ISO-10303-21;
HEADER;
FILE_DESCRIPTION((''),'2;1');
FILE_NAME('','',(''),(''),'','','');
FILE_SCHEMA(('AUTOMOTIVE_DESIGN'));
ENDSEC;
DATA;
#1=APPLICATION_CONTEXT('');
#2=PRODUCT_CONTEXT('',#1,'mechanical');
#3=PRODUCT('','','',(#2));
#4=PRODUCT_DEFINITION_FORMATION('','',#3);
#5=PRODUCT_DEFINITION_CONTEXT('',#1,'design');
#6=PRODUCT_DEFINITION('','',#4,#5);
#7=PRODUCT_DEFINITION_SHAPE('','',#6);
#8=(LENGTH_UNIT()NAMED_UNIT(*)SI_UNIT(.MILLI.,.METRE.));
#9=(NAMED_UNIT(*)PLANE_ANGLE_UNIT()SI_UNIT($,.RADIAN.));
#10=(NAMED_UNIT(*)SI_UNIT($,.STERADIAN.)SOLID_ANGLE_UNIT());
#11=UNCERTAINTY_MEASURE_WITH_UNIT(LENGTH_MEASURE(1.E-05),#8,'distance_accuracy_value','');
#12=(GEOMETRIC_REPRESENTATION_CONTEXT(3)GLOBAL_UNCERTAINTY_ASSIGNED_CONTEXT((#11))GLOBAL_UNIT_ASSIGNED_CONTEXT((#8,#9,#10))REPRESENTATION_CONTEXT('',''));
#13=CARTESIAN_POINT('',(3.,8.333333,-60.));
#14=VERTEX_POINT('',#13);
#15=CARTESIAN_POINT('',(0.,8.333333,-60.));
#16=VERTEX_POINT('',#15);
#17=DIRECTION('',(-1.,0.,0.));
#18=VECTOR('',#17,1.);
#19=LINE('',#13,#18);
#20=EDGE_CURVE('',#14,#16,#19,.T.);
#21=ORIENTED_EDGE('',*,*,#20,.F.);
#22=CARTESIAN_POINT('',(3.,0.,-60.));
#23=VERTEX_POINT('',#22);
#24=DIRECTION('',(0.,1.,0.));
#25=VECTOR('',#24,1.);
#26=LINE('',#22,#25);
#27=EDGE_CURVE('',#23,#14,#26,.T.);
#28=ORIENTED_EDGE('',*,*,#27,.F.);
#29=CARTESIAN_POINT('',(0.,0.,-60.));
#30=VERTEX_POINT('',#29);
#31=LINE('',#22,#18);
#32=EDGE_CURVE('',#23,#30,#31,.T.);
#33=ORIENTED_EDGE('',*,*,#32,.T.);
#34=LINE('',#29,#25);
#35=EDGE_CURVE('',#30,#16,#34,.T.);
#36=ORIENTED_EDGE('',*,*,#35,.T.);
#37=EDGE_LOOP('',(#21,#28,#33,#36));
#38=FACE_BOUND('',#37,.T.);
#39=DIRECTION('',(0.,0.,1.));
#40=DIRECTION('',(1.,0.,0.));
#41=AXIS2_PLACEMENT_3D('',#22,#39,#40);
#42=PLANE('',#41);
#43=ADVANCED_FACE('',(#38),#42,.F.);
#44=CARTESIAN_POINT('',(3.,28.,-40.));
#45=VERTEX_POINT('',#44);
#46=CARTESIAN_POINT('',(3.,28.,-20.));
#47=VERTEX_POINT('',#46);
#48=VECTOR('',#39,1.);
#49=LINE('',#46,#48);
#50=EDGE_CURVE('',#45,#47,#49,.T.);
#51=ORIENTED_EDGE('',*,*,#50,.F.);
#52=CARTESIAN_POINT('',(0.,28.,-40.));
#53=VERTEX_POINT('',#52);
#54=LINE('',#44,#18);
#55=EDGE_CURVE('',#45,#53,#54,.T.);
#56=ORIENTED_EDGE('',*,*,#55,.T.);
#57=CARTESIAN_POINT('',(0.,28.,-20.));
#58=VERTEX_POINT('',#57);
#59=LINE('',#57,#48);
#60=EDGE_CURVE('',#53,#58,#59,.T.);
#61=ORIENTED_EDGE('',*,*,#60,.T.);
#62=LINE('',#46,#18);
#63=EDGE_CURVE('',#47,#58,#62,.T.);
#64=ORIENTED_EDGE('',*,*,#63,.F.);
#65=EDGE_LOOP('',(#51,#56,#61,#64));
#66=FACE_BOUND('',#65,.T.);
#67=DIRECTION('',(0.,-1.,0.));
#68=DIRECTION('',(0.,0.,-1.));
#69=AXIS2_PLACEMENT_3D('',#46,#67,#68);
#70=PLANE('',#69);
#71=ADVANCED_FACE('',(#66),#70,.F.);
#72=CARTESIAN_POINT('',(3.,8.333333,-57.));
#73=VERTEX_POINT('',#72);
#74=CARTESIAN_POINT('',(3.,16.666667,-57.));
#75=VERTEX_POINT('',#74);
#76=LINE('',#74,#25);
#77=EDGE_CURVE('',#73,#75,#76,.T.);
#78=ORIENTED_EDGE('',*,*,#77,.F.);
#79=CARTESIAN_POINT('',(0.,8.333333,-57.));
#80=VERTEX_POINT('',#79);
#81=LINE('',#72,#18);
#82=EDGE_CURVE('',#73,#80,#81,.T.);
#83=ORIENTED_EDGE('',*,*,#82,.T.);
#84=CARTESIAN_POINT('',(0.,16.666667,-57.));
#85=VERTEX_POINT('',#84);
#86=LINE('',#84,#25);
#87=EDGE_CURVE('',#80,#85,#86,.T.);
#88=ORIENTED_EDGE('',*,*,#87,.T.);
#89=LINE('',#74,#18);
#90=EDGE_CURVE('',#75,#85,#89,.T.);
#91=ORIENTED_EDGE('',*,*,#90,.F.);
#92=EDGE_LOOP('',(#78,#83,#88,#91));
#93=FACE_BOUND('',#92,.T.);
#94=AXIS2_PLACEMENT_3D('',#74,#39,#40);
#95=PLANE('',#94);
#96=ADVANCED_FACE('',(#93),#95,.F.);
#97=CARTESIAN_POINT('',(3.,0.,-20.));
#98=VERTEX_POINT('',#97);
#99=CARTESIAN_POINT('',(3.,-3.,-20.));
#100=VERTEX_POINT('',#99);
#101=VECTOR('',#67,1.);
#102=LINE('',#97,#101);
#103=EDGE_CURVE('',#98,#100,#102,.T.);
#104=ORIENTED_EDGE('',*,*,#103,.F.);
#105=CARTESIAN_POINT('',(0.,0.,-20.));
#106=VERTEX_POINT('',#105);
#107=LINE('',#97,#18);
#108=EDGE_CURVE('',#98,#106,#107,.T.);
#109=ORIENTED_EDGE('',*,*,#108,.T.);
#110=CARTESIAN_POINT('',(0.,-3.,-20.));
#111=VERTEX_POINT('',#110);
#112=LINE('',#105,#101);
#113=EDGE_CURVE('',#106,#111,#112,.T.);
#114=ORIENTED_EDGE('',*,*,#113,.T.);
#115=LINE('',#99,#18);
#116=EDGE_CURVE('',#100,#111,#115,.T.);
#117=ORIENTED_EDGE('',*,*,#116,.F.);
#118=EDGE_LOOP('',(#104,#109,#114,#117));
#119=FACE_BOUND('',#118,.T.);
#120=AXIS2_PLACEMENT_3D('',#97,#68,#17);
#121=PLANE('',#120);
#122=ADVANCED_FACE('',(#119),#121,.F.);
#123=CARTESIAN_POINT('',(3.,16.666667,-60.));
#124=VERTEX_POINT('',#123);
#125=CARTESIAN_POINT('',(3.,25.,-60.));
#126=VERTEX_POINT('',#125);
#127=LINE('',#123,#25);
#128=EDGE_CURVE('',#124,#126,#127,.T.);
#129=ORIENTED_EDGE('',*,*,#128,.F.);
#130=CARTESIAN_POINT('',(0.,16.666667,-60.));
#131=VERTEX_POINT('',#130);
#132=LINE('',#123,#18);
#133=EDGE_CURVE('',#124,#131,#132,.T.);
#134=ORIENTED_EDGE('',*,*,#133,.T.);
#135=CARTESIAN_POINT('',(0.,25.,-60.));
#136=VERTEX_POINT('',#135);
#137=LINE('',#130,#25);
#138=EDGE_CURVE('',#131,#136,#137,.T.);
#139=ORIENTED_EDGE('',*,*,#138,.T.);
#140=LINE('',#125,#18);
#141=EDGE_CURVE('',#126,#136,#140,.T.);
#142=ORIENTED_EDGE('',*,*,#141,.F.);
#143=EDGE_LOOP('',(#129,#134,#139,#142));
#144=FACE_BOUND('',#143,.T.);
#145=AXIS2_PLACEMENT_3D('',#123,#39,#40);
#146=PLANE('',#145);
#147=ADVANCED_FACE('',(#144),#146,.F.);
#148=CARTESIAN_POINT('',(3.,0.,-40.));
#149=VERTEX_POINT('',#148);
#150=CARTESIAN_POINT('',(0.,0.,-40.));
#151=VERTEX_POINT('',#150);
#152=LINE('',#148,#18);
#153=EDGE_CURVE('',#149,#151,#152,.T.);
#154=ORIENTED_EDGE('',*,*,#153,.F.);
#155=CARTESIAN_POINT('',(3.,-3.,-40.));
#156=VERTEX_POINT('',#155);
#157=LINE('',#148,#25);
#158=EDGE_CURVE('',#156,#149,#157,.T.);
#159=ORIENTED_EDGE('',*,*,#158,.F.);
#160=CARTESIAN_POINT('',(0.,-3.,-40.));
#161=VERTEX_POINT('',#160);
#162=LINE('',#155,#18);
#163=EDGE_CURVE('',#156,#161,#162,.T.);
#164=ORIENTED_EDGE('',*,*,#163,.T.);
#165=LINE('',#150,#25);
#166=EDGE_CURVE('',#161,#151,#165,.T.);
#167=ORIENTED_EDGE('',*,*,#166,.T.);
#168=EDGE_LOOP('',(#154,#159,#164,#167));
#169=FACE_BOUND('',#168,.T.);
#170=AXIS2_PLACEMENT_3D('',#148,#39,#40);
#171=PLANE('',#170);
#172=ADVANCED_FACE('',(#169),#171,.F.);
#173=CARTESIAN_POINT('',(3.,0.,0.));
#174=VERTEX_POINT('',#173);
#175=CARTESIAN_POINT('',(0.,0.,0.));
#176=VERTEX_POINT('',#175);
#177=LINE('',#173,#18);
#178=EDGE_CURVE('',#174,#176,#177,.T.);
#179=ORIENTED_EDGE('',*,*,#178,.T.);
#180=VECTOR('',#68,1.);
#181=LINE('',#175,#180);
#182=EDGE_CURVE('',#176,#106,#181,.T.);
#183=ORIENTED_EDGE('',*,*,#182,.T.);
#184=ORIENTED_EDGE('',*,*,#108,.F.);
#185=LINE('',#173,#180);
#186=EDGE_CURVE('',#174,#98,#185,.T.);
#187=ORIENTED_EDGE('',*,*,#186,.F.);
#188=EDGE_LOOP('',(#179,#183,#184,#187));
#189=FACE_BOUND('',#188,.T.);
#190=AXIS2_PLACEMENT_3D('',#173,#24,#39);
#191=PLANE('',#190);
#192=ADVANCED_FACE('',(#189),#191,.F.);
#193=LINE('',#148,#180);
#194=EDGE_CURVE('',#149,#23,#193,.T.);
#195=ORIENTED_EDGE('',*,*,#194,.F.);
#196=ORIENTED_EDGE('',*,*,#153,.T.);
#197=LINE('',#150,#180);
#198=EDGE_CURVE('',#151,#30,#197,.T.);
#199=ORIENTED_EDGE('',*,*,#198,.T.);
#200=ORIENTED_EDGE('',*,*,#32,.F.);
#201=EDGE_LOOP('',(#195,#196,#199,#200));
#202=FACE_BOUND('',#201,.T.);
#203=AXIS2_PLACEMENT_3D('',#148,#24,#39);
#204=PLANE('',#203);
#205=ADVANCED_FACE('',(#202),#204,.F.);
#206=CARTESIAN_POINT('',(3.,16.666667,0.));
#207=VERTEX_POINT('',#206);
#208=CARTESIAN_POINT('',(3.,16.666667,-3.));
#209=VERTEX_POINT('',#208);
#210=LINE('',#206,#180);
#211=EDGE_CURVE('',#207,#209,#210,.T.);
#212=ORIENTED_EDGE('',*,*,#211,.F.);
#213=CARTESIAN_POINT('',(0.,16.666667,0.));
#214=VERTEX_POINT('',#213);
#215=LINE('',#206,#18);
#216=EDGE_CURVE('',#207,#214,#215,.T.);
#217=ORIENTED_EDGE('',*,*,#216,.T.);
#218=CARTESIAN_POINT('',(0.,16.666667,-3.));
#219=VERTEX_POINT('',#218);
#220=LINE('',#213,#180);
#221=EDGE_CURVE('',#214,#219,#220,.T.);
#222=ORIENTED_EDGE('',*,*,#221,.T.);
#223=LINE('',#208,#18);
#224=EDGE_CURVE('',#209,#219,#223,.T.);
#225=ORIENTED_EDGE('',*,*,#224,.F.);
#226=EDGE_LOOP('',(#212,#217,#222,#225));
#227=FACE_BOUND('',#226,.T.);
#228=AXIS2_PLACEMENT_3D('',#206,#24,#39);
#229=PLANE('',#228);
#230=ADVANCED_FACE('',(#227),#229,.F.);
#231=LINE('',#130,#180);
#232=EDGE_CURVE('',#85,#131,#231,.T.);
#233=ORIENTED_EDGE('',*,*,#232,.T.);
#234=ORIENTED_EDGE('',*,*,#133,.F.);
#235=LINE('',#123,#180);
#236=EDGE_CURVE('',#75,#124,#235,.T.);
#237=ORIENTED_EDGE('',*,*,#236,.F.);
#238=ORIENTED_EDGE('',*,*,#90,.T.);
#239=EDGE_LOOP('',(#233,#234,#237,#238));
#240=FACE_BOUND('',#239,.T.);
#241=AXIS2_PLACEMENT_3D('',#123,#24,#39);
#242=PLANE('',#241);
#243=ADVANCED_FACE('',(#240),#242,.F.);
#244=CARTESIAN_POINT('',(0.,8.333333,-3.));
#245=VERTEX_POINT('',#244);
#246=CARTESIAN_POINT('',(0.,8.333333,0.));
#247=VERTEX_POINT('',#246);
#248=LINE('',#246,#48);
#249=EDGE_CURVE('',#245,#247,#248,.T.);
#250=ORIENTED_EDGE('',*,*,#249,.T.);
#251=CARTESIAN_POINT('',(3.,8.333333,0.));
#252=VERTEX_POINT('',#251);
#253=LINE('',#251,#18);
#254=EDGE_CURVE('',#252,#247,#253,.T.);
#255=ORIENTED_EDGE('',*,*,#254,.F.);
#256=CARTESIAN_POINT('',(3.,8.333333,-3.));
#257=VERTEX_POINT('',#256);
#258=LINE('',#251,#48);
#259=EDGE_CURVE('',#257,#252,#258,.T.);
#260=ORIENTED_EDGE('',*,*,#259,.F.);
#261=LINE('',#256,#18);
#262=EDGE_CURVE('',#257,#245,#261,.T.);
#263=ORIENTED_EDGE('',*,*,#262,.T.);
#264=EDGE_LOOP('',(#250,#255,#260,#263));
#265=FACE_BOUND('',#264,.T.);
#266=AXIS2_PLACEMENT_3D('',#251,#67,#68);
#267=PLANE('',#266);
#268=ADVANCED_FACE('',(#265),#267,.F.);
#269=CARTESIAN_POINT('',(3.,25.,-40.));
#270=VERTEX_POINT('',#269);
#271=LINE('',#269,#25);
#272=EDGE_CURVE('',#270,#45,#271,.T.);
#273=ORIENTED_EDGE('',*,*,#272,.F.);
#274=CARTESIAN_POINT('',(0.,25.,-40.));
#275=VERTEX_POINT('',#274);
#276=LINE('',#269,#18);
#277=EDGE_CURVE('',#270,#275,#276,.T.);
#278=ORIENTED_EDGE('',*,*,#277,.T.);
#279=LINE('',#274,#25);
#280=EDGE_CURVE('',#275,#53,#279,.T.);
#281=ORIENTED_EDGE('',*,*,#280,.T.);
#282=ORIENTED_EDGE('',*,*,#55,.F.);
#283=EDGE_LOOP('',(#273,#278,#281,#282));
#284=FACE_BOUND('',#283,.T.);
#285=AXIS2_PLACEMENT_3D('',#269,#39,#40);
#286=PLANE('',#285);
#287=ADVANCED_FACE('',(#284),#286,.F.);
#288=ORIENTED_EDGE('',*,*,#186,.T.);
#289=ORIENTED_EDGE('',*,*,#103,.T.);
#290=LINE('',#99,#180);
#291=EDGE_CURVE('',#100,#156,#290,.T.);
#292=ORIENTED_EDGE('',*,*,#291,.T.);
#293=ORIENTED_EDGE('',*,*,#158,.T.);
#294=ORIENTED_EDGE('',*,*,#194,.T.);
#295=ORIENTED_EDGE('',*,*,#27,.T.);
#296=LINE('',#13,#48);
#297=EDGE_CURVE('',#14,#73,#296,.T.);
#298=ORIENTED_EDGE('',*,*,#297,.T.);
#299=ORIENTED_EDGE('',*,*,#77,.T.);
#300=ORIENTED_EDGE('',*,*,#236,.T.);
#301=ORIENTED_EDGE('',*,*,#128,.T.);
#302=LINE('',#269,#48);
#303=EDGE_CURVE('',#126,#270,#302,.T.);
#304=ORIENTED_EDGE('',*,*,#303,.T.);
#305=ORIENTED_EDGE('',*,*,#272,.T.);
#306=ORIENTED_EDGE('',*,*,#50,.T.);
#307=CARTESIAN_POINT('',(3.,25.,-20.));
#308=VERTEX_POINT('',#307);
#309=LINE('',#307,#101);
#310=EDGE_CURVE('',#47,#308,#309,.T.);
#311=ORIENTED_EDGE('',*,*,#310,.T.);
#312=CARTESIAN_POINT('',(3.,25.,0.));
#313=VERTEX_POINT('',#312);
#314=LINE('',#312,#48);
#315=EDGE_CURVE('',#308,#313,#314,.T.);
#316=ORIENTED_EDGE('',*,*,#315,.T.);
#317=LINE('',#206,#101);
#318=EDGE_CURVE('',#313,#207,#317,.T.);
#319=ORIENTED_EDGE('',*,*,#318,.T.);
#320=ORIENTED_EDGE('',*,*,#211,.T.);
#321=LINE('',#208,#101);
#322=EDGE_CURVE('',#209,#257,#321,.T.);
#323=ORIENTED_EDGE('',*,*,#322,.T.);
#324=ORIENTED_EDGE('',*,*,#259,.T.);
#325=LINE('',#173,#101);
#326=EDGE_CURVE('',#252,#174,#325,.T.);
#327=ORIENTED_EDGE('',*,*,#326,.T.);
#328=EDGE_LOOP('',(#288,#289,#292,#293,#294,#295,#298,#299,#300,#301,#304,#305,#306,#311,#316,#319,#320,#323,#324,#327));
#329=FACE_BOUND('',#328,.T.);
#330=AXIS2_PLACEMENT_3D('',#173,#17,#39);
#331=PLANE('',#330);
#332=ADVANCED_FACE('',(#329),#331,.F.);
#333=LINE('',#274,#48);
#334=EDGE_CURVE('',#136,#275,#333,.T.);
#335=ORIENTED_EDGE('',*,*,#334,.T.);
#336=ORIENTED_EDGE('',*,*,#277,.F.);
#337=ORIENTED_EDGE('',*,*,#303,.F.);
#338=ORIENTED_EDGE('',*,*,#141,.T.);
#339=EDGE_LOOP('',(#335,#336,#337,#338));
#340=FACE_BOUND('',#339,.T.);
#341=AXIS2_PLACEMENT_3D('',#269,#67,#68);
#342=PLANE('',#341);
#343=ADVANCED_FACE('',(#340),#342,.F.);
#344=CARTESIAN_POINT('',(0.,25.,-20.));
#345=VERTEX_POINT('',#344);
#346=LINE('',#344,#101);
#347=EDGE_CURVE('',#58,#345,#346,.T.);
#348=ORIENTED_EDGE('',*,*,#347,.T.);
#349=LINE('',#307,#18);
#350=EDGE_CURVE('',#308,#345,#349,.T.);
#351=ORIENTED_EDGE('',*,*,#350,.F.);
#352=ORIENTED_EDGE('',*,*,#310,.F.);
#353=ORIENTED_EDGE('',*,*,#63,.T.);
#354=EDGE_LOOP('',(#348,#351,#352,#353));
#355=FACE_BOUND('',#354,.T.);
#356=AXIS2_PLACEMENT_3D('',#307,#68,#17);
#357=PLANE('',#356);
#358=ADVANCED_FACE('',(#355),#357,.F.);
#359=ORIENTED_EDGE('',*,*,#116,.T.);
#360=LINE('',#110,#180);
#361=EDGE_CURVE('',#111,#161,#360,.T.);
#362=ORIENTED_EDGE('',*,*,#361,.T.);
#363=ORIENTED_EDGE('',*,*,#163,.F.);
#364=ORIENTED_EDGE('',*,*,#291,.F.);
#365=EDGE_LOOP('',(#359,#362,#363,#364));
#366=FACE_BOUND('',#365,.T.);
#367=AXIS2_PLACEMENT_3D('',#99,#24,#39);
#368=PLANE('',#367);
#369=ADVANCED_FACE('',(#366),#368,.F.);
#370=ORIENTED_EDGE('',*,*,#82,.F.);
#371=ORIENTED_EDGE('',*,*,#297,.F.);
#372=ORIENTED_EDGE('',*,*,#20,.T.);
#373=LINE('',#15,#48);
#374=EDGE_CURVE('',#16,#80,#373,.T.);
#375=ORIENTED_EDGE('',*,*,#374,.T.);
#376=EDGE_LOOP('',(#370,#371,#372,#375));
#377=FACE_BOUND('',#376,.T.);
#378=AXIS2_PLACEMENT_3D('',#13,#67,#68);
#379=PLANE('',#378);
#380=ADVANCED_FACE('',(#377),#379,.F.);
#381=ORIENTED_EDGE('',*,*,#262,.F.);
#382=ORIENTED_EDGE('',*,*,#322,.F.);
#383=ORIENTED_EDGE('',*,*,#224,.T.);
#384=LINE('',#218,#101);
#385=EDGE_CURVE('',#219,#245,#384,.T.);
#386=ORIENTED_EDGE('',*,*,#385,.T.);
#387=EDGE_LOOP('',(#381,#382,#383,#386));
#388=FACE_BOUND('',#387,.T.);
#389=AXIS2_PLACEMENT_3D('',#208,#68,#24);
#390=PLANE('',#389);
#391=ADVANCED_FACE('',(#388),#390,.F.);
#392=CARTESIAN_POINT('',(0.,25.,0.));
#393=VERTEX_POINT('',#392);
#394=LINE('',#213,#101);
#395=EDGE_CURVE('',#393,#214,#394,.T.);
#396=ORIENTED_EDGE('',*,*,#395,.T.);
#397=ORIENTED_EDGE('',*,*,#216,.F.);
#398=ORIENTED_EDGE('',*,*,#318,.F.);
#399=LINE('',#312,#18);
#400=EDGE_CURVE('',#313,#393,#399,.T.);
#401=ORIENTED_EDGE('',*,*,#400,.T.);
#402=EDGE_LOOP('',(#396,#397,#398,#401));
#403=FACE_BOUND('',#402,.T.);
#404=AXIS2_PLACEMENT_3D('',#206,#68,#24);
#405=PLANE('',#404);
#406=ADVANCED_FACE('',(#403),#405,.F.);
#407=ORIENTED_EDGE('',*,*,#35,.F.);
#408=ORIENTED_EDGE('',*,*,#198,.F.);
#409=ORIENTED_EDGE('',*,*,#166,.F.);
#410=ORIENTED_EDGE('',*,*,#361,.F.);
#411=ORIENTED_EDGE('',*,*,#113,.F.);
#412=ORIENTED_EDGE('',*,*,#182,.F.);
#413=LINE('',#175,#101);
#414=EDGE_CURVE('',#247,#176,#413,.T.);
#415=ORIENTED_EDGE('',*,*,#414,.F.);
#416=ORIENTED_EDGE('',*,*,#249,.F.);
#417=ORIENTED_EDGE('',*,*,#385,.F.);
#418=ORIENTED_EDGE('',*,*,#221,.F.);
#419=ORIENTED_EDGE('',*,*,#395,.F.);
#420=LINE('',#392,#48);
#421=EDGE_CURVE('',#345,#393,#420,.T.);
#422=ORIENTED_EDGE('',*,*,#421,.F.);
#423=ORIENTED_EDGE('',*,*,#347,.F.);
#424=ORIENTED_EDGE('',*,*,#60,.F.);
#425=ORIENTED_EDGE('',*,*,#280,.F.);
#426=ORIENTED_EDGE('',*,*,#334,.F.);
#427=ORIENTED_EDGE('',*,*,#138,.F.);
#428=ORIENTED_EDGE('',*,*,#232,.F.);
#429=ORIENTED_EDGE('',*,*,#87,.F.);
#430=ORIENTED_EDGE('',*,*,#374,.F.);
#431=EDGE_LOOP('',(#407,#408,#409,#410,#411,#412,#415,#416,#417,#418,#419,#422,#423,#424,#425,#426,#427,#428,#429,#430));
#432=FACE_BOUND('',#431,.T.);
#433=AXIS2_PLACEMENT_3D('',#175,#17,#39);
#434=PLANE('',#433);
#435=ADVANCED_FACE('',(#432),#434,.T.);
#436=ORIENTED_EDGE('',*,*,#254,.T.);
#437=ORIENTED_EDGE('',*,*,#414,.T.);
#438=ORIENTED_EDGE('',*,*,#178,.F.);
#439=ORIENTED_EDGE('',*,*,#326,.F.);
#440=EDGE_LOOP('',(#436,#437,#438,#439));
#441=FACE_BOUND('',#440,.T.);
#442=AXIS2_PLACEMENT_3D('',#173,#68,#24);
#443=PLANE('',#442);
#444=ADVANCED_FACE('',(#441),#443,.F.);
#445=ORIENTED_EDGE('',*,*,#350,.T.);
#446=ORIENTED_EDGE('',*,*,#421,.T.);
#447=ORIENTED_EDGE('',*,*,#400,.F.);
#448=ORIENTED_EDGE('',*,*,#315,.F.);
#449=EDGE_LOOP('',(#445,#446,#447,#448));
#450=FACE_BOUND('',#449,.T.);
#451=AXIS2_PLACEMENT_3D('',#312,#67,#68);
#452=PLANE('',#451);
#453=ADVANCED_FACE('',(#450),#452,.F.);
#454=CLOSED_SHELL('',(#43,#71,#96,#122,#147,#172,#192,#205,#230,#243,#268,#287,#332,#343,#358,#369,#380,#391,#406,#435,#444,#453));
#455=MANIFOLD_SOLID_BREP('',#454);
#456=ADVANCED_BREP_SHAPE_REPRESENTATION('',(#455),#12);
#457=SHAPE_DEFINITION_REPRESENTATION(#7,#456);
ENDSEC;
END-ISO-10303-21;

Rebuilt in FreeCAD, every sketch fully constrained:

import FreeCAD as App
import Part
import Sketcher
from FreeCAD import Vector


def add_polygon(sketch, points):
    """Adds a closed chain of lines whose ends are joined by coincident constraints."""
    first, n = sketch.GeometryCount, len(points)
    for a, b in zip(points, points[1:] + points[:1]):
        sketch.addGeometry(Part.LineSegment(App.Vector(*a, 0), App.Vector(*b, 0)), False)
    for i in range(n):
        sketch.addConstraint(Sketcher.Constraint("Coincident", first + i, 2, first + (i + 1) % n, 1))

doc = App.newDocument("Part")
body = doc.addObject("PartDesign::Body", "Body")

# Sketch on YZ plane
sketch1 = body.newObject("Sketcher::SketchObject", "Sketch")
sketch1.AttachmentSupport = (doc.getObject("YZ_Plane"), [""])
sketch1.MapMode = "FlatFace"
add_polygon(sketch1, [(25, 0), (16.7, 0), (16.7, -3), (8.3, -3), (8.3, 0), (0, 0), (0, -20), (-3, -20), (-3, -40), (0, -40), (0, -60), (8.3, -60), (8.3, -57), (16.7, -57), (16.7, -60), (25, -60), (25, -40), (28, -40), (28, -20), (25, -20)])  # lines 0-19
sketch1.addConstraint([
    Sketcher.Constraint("Horizontal", 0),
    Sketcher.Constraint("Vertical", 1),
    Sketcher.Constraint("Horizontal", 2),
    Sketcher.Constraint("Vertical", 3),
    Sketcher.Constraint("Horizontal", 4),
    Sketcher.Constraint("Vertical", 5),
    Sketcher.Constraint("Horizontal", 6),
    Sketcher.Constraint("Vertical", 7),
    Sketcher.Constraint("Horizontal", 8),
    Sketcher.Constraint("Vertical", 9),
    Sketcher.Constraint("Horizontal", 10),
    Sketcher.Constraint("Vertical", 11),
    Sketcher.Constraint("Horizontal", 12),
    Sketcher.Constraint("Vertical", 13),
    Sketcher.Constraint("Horizontal", 14),
    Sketcher.Constraint("Vertical", 15),
    Sketcher.Constraint("Horizontal", 16),
    Sketcher.Constraint("Vertical", 17),
    Sketcher.Constraint("Horizontal", 18),
    Sketcher.Constraint("Vertical", 19),
    Sketcher.Constraint("Coincident", 4, 2, -1, 1),
    Sketcher.Constraint("PointOnObject", 0, 2, -1),
    Sketcher.Constraint("PointOnObject", 8, 2, -2),
    Sketcher.Constraint("Horizontal", 10, 2, 13, 2),
    Sketcher.Constraint("Horizontal", 8, 2, 15, 2),
    Sketcher.Constraint("Horizontal", 6, 2, 17, 2),
    Sketcher.Constraint("Vertical", 3, 2, 10, 2),
    Sketcher.Constraint("Vertical", 1, 2, 12, 2),
    Sketcher.Constraint("Vertical", 15, 2, 18, 2),
    Sketcher.Constraint("Equal", 0, 2),
    Sketcher.Constraint("Equal", 2, 4),
    Sketcher.Constraint("Equal", 8, 16),
    Sketcher.Constraint("Equal", 18, 1),
    Sketcher.Constraint("Equal", 5, 7),
    Sketcher.Constraint("Equal", 7, 9),
    Sketcher.Constraint("Equal", 3, 11),
    Sketcher.Constraint("DistanceX", 6, 2, 6, 1, 3.0),
    Sketcher.Constraint("DistanceY", 5, 2, 5, 1, 20.0),
    Sketcher.Constraint("DistanceX", -1, 1, 14, 2, 25.0),
])
pad1 = body.newObject("PartDesign::Pad", "Pad")
pad1.Profile = sketch1
pad1.Length = 3

doc.recompute()
